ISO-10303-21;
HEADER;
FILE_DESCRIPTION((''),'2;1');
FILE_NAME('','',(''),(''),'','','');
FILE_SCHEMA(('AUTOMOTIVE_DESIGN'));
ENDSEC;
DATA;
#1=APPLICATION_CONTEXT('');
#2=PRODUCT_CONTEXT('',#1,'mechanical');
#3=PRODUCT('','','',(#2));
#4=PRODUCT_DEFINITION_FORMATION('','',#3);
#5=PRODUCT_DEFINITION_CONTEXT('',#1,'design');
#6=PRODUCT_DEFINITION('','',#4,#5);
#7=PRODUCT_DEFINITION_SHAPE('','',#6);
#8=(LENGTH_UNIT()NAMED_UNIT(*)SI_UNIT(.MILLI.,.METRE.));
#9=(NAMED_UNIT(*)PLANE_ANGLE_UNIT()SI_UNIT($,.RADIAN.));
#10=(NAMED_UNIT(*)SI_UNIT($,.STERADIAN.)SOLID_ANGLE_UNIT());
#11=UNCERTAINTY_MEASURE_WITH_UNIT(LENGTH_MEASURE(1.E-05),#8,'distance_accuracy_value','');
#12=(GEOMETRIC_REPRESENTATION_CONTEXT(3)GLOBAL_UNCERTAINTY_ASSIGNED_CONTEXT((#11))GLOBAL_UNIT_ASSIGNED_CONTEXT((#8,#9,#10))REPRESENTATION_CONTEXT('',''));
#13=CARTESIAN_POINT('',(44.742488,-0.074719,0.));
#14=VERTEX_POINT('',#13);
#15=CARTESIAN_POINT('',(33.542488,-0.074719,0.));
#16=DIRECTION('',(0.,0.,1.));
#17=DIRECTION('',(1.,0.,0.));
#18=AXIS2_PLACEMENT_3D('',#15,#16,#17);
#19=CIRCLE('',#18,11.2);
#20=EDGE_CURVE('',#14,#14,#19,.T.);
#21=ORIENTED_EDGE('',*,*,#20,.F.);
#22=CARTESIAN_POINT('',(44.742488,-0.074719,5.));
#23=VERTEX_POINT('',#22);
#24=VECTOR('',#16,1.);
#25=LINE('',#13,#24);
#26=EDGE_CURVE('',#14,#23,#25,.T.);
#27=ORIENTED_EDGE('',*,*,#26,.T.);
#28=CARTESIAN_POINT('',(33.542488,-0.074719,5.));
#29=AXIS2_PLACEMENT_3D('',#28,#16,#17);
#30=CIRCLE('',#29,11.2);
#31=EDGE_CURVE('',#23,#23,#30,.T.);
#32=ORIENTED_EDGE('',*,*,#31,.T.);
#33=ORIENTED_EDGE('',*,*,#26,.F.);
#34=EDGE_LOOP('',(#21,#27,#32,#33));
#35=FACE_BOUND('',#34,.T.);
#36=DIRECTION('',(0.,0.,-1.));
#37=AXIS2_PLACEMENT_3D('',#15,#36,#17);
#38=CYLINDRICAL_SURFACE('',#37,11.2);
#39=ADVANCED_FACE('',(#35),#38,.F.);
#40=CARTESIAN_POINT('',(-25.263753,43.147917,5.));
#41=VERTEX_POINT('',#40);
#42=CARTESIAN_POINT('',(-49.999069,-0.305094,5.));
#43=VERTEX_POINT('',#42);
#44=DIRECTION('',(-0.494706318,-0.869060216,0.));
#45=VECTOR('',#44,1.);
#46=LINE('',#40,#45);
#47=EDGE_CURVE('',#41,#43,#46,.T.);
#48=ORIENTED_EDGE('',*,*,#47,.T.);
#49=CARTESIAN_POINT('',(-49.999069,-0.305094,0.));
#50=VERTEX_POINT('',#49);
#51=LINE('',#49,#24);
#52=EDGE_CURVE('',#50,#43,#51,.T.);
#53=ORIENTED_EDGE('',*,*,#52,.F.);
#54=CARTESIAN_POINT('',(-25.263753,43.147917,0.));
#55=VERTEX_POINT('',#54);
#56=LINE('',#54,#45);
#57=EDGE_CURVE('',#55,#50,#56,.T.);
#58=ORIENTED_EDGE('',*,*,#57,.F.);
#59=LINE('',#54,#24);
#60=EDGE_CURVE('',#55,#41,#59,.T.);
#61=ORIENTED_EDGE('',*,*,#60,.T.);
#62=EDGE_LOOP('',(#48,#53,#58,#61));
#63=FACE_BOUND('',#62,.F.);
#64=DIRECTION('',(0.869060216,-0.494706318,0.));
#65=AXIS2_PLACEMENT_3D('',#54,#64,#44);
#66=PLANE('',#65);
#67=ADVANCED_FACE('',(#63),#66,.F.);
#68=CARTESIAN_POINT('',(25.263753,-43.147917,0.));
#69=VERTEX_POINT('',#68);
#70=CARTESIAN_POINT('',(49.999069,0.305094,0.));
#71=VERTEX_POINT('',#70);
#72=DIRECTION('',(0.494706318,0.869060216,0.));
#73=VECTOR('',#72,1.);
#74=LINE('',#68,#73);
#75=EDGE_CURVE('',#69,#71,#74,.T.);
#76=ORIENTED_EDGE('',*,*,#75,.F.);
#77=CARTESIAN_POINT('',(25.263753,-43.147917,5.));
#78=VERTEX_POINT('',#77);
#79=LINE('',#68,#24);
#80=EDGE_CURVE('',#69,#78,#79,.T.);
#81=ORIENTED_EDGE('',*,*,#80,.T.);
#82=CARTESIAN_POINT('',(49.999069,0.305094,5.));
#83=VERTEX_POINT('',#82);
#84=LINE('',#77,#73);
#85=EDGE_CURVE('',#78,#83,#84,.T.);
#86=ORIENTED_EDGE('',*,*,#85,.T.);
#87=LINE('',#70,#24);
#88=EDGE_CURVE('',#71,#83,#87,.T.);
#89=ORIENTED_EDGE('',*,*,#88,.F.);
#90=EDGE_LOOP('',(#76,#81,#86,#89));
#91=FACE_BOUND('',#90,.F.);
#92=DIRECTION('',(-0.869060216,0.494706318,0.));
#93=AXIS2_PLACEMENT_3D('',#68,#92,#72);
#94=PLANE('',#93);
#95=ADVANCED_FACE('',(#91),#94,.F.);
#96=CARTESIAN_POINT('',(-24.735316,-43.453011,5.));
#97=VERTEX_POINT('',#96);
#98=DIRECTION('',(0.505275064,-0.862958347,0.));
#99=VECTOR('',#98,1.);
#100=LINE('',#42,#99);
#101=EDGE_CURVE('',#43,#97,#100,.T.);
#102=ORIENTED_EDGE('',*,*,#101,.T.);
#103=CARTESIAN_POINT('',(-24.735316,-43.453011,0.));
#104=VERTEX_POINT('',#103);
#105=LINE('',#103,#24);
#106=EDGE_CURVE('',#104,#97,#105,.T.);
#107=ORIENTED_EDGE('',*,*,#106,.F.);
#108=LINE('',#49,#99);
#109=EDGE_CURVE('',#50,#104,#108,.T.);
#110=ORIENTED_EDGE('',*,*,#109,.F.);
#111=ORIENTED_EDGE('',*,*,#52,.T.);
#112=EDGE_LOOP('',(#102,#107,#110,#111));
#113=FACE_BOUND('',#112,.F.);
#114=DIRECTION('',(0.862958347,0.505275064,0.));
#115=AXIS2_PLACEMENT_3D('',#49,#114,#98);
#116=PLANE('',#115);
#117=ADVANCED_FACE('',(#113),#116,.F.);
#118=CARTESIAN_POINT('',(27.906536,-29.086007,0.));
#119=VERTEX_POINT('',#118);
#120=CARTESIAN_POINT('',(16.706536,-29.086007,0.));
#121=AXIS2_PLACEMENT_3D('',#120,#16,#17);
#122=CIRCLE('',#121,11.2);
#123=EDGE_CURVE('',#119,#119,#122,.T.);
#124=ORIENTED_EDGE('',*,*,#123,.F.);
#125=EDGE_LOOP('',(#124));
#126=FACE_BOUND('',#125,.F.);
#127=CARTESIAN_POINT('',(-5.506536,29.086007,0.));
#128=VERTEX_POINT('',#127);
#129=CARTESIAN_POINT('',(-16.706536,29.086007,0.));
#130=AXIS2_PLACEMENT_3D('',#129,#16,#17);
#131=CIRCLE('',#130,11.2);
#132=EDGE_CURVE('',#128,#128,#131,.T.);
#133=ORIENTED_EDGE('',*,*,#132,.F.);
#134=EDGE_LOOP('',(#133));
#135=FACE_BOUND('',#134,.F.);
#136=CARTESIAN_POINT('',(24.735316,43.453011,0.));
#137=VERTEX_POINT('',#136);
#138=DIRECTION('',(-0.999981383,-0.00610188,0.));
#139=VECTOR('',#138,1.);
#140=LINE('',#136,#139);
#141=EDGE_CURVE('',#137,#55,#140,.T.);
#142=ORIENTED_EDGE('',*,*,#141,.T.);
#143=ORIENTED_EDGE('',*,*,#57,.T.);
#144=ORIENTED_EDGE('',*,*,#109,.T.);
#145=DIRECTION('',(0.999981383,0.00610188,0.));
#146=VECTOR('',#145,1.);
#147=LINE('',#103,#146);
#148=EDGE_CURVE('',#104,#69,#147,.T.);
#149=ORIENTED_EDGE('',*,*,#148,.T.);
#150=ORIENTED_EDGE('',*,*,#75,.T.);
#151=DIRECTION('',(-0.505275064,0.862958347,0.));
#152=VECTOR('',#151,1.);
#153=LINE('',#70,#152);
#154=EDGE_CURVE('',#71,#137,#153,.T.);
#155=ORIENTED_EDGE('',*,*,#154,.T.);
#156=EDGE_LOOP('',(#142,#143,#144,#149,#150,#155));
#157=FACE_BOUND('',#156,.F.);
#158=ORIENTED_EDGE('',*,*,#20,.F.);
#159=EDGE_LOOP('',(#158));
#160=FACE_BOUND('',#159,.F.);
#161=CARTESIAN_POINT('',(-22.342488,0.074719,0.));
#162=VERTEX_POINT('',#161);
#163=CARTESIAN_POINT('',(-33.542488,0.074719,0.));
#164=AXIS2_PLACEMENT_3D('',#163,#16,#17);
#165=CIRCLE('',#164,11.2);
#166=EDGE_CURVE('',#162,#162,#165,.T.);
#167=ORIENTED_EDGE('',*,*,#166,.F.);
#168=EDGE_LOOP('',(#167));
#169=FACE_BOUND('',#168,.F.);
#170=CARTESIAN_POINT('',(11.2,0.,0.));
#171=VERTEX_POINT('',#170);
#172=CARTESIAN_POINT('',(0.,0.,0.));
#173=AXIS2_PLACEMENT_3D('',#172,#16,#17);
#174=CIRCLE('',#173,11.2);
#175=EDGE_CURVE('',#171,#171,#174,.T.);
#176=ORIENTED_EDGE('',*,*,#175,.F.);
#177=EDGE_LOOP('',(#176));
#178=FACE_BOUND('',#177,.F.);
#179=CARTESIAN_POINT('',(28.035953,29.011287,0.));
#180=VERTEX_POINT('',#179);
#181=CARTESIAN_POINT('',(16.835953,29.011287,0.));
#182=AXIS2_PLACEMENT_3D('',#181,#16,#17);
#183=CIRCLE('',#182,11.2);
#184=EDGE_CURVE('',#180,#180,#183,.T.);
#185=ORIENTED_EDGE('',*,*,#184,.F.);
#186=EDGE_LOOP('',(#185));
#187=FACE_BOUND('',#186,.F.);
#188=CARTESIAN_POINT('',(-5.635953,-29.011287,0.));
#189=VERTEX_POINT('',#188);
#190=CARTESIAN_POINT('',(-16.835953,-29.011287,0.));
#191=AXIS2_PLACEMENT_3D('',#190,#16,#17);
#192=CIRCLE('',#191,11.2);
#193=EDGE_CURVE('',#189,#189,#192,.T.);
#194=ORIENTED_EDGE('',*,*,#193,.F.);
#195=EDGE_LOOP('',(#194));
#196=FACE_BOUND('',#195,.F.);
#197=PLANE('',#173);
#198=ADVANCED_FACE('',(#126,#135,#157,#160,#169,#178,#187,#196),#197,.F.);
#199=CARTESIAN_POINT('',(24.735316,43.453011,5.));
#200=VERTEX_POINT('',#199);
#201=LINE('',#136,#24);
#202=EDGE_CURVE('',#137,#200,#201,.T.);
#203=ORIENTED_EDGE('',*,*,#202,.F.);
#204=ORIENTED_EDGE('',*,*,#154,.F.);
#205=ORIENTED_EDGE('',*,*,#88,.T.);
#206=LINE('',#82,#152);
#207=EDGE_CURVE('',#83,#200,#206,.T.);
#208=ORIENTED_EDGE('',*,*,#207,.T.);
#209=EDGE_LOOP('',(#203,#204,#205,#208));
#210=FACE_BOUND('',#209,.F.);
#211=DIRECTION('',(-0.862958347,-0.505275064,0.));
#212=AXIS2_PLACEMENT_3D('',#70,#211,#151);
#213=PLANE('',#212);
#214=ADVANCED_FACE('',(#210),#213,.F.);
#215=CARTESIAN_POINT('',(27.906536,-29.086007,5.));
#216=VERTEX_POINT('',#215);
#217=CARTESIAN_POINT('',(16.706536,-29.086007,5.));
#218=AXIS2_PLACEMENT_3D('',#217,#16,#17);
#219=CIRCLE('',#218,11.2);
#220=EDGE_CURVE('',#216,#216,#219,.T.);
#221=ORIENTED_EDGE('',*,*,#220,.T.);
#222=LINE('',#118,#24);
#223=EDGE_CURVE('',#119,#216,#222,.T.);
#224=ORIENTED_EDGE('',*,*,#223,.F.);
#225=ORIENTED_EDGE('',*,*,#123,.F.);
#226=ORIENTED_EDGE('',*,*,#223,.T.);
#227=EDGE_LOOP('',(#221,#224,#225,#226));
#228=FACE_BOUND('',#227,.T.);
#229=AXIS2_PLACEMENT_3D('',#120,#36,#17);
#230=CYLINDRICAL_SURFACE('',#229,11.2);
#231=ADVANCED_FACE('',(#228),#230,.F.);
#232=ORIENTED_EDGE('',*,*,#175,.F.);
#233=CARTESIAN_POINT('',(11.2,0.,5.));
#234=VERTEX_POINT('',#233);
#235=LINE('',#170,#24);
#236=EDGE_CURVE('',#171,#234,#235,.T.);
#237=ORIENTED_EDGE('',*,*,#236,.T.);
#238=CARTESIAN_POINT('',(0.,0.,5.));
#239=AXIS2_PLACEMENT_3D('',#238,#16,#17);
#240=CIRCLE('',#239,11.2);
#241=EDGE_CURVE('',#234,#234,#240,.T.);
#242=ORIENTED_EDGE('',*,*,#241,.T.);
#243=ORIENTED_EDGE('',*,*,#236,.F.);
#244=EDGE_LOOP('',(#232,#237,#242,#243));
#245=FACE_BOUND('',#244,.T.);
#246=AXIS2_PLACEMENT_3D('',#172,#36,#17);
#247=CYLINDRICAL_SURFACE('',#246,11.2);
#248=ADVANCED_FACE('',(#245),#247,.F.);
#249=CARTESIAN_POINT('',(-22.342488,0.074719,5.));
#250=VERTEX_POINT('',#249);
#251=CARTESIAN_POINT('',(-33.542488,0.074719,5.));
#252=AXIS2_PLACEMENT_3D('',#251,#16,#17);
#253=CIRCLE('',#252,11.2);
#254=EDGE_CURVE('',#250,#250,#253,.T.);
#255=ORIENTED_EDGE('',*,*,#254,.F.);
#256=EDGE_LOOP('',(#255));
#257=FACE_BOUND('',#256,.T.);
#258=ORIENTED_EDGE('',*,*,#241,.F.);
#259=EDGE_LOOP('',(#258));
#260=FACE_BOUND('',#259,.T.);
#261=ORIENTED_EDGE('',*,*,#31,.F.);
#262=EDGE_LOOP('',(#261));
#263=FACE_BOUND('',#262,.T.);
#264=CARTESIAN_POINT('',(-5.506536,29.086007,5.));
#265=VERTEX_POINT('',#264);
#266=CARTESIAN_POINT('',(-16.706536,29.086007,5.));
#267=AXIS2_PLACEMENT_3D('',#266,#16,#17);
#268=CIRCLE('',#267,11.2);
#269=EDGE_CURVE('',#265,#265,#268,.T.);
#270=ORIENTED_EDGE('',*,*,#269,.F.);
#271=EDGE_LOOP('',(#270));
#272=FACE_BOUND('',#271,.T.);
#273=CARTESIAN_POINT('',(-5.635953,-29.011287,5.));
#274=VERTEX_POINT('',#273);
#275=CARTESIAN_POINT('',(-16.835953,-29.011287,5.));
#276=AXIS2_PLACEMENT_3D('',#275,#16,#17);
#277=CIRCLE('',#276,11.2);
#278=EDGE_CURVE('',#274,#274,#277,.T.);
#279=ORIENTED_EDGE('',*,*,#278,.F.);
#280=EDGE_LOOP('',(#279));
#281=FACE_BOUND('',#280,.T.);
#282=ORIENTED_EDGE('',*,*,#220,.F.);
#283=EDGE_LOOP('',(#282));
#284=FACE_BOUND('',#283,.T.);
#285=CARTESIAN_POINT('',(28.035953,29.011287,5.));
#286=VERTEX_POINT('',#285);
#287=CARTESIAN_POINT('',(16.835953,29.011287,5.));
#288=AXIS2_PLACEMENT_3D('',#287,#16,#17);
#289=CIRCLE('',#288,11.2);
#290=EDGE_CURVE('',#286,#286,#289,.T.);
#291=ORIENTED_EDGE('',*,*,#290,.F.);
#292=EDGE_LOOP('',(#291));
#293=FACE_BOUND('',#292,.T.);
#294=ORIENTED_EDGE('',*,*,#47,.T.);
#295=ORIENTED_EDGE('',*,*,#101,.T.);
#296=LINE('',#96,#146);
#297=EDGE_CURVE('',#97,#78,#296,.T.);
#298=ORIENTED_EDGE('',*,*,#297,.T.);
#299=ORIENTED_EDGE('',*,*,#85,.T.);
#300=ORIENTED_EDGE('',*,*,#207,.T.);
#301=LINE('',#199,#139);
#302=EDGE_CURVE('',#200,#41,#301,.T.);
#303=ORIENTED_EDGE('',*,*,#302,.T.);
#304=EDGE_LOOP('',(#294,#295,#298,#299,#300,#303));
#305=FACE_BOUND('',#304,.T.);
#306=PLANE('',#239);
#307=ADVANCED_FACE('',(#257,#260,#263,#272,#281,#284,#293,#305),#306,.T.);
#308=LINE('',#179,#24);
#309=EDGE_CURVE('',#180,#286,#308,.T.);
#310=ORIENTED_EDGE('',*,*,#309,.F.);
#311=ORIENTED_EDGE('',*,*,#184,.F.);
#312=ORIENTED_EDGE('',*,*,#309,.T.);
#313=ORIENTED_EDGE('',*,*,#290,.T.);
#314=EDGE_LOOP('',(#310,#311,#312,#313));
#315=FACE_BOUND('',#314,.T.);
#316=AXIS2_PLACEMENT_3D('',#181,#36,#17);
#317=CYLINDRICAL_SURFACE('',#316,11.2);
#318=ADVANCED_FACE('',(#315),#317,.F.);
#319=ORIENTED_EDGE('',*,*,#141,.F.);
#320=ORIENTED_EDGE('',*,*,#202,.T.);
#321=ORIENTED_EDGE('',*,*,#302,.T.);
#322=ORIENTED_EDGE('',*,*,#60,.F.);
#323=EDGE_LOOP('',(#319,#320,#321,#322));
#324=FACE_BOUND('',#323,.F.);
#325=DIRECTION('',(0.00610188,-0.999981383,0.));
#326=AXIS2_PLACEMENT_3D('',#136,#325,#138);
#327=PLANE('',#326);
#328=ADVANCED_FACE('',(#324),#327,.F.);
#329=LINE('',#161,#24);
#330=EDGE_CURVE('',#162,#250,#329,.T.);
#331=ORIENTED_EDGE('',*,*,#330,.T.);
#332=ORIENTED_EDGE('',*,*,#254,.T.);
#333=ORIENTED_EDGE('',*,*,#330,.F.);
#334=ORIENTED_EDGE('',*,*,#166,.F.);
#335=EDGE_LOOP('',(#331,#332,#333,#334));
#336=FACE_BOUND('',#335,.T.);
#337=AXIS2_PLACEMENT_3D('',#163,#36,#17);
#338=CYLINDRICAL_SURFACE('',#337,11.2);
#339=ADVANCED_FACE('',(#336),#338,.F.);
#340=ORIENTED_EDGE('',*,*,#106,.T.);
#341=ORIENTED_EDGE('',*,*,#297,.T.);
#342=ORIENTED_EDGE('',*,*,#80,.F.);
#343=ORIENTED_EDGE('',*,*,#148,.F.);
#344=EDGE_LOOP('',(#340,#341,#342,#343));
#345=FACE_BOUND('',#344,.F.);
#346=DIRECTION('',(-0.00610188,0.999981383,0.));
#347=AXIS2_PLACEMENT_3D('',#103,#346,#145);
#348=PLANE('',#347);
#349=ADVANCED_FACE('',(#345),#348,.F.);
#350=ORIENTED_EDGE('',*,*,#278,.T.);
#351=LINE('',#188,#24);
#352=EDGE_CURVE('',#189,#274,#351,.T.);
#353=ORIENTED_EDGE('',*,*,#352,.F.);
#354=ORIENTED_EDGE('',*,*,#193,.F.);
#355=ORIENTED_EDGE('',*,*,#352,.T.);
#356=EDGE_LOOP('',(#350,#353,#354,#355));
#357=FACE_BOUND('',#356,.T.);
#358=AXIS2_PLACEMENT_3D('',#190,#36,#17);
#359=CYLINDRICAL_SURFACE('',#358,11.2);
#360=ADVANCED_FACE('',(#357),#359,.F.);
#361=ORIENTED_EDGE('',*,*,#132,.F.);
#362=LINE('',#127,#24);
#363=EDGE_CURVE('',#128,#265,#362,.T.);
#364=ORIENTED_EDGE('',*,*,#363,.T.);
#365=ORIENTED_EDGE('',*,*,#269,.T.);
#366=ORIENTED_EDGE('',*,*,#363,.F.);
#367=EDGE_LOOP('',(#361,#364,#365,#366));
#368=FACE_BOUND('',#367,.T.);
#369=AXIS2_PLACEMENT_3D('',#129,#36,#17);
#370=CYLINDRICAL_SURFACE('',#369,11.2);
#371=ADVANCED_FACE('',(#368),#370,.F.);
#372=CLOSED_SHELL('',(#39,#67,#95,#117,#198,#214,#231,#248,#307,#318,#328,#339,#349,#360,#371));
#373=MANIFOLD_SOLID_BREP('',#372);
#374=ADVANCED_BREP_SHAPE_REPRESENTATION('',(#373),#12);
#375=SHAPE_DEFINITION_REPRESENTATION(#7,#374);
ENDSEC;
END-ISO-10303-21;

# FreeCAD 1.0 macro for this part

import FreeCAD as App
import Part
import Sketcher
from FreeCAD import Vector
Q = App.Units.Quantity


def add_polygon(sketch, points):
    """Adds a closed chain of lines whose ends are joined by coincident constraints."""
    first, n = sketch.GeometryCount, len(points)
    for a, b in zip(points, points[1:] + points[:1]):
        sketch.addGeometry(Part.LineSegment(App.Vector(*a, 0), App.Vector(*b, 0)), False)
    for i in range(n):
        sketch.addConstraint(Sketcher.Constraint("Coincident", first + i, 2, first + (i + 1) % n, 1))

doc = App.newDocument("Part")
params = doc.addObject("Spreadsheet::Sheet", "Params")
for row, (alias, value) in enumerate([
    ("sketch1_diameter", "22.4 mm"),
    ("sketch1_length", "50 mm"),
    ("pad1_length", "5 mm"),
], start=1):
    params.set(f"A{row}", alias)
    params.set(f"B{row}", "=" + value)
    params.setAlias(f"B{row}", alias)

body = doc.addObject("PartDesign::Body", "Body")

# Sketch on XY plane
sketch1 = body.newObject("Sketcher::SketchObject", "Sketch")
sketch1.AttachmentSupport = (doc.getObject("XY_Plane"), [""])
sketch1.MapMode = "FlatFace"
add_polygon(sketch1, [(50, 0), (25, 43), (-25, 43), (-50, 0), (-25, -43), (25, -43)])  # lines 0-5
sketch1.addGeometry(Part.Circle(Vector(-17, -29, 0), Vector(0, 0, 1), 11), False)  # 6
sketch1.addGeometry(Part.Circle(Vector(17, -29, 0), Vector(0, 0, 1), 11), False)  # 7
sketch1.addGeometry(Part.Circle(Vector(34, 0, 0), Vector(0, 0, 1), 11), False)  # 8
sketch1.addGeometry(Part.Circle(Vector(-34, 0, 0), Vector(0, 0, 1), 11), False)  # 9
sketch1.addGeometry(Part.Circle(Vector(-17, 29, 0), Vector(0, 0, 1), 11), False)  # 10
sketch1.addGeometry(Part.Circle(Vector(0, 0, 0), Vector(0, 0, 1), 11), False)  # 11
sketch1.addGeometry(Part.Circle(Vector(17, 29, 0), Vector(0, 0, 1), 11), False)  # 12
sketch1.addConstraint(Sketcher.Constraint("Coincident", 11, 3, -1, 1))
sketch1.addConstraint(Sketcher.Constraint("Equal", 6, 7))
sketch1.addConstraint(Sketcher.Constraint("Equal", 7, 8))
sketch1.addConstraint(Sketcher.Constraint("Equal", 8, 9))
sketch1.addConstraint(Sketcher.Constraint("Equal", 9, 10))
sketch1.addConstraint(Sketcher.Constraint("Equal", 10, 11))
sketch1.addConstraint(Sketcher.Constraint("Equal", 11, 12))
sketch1.addConstraint(Sketcher.Constraint("Symmetric", 8, 3, 9, 3, -1, 1))
sketch1.addConstraint(Sketcher.Constraint("Symmetric", 7, 3, 10, 3, -1, 1))
sketch1.addConstraint(Sketcher.Constraint("Symmetric", 6, 3, 12, 3, -1, 1))
sketch1.addConstraint(Sketcher.Constraint("Symmetric", 0, 2, 3, 2, -1, 1))
sketch1.addConstraint(Sketcher.Constraint("Symmetric", 1, 2, 4, 2, -1, 1))
sketch1.addConstraint(Sketcher.Constraint("Symmetric", 2, 2, 5, 2, -1, 1))
sketch1.addConstraint(Sketcher.Constraint("Equal", 0, 1))
sketch1.addConstraint(Sketcher.Constraint("Equal", 1, 2))
sketch1.addConstraint(Sketcher.Constraint("Diameter", 6, Q("22.4 mm")))
sketch1.addConstraint(Sketcher.Constraint("Distance", 0, Q("50 mm")))
sketch1.addConstraint(Sketcher.Constraint("DistanceY", 2, 2, 10, 3, Q("29.391101 mm")))
sketch1.addConstraint(Sketcher.Constraint("DistanceY", 8, 3, -1, 1, Q("0.074719 mm")))
sketch1.addConstraint(Sketcher.Constraint("DistanceY", -1, 1, 0, 2, Q("43.453011 mm")))
sketch1.addConstraint(Sketcher.Constraint("DistanceX", 2, 2, -1, 1, Q("49.999069 mm")))
sketch1.addConstraint(Sketcher.Constraint("DistanceX", 6, 3, 7, 3, Q("33.542489 mm")))
sketch1.addConstraint(Sketcher.Constraint("DistanceY", 7, 3, 6, 3, Q("0.07472 mm")))
sketch1.addConstraint(Sketcher.Constraint("DistanceX", 7, 3, 8, 3, Q("16.835952 mm")))
sketch1.addConstraint(Sketcher.Constraint("DistanceX", 10, 3, 0, 2, Q("41.441852 mm")))
sketch1.addConstraint(Sketcher.Constraint("DistanceX", 0, 2, 8, 3, Q("8.807172 mm")))
sketch1.setExpression("Constraints[21]", "Params.sketch1_diameter")
sketch1.setExpression("Constraints[22]", "Params.sketch1_length")
pad1 = body.newObject("PartDesign::Pad", "Pad")
pad1.Profile = sketch1
pad1.setExpression("Length", "Params.pad1_length")

doc.recompute()
